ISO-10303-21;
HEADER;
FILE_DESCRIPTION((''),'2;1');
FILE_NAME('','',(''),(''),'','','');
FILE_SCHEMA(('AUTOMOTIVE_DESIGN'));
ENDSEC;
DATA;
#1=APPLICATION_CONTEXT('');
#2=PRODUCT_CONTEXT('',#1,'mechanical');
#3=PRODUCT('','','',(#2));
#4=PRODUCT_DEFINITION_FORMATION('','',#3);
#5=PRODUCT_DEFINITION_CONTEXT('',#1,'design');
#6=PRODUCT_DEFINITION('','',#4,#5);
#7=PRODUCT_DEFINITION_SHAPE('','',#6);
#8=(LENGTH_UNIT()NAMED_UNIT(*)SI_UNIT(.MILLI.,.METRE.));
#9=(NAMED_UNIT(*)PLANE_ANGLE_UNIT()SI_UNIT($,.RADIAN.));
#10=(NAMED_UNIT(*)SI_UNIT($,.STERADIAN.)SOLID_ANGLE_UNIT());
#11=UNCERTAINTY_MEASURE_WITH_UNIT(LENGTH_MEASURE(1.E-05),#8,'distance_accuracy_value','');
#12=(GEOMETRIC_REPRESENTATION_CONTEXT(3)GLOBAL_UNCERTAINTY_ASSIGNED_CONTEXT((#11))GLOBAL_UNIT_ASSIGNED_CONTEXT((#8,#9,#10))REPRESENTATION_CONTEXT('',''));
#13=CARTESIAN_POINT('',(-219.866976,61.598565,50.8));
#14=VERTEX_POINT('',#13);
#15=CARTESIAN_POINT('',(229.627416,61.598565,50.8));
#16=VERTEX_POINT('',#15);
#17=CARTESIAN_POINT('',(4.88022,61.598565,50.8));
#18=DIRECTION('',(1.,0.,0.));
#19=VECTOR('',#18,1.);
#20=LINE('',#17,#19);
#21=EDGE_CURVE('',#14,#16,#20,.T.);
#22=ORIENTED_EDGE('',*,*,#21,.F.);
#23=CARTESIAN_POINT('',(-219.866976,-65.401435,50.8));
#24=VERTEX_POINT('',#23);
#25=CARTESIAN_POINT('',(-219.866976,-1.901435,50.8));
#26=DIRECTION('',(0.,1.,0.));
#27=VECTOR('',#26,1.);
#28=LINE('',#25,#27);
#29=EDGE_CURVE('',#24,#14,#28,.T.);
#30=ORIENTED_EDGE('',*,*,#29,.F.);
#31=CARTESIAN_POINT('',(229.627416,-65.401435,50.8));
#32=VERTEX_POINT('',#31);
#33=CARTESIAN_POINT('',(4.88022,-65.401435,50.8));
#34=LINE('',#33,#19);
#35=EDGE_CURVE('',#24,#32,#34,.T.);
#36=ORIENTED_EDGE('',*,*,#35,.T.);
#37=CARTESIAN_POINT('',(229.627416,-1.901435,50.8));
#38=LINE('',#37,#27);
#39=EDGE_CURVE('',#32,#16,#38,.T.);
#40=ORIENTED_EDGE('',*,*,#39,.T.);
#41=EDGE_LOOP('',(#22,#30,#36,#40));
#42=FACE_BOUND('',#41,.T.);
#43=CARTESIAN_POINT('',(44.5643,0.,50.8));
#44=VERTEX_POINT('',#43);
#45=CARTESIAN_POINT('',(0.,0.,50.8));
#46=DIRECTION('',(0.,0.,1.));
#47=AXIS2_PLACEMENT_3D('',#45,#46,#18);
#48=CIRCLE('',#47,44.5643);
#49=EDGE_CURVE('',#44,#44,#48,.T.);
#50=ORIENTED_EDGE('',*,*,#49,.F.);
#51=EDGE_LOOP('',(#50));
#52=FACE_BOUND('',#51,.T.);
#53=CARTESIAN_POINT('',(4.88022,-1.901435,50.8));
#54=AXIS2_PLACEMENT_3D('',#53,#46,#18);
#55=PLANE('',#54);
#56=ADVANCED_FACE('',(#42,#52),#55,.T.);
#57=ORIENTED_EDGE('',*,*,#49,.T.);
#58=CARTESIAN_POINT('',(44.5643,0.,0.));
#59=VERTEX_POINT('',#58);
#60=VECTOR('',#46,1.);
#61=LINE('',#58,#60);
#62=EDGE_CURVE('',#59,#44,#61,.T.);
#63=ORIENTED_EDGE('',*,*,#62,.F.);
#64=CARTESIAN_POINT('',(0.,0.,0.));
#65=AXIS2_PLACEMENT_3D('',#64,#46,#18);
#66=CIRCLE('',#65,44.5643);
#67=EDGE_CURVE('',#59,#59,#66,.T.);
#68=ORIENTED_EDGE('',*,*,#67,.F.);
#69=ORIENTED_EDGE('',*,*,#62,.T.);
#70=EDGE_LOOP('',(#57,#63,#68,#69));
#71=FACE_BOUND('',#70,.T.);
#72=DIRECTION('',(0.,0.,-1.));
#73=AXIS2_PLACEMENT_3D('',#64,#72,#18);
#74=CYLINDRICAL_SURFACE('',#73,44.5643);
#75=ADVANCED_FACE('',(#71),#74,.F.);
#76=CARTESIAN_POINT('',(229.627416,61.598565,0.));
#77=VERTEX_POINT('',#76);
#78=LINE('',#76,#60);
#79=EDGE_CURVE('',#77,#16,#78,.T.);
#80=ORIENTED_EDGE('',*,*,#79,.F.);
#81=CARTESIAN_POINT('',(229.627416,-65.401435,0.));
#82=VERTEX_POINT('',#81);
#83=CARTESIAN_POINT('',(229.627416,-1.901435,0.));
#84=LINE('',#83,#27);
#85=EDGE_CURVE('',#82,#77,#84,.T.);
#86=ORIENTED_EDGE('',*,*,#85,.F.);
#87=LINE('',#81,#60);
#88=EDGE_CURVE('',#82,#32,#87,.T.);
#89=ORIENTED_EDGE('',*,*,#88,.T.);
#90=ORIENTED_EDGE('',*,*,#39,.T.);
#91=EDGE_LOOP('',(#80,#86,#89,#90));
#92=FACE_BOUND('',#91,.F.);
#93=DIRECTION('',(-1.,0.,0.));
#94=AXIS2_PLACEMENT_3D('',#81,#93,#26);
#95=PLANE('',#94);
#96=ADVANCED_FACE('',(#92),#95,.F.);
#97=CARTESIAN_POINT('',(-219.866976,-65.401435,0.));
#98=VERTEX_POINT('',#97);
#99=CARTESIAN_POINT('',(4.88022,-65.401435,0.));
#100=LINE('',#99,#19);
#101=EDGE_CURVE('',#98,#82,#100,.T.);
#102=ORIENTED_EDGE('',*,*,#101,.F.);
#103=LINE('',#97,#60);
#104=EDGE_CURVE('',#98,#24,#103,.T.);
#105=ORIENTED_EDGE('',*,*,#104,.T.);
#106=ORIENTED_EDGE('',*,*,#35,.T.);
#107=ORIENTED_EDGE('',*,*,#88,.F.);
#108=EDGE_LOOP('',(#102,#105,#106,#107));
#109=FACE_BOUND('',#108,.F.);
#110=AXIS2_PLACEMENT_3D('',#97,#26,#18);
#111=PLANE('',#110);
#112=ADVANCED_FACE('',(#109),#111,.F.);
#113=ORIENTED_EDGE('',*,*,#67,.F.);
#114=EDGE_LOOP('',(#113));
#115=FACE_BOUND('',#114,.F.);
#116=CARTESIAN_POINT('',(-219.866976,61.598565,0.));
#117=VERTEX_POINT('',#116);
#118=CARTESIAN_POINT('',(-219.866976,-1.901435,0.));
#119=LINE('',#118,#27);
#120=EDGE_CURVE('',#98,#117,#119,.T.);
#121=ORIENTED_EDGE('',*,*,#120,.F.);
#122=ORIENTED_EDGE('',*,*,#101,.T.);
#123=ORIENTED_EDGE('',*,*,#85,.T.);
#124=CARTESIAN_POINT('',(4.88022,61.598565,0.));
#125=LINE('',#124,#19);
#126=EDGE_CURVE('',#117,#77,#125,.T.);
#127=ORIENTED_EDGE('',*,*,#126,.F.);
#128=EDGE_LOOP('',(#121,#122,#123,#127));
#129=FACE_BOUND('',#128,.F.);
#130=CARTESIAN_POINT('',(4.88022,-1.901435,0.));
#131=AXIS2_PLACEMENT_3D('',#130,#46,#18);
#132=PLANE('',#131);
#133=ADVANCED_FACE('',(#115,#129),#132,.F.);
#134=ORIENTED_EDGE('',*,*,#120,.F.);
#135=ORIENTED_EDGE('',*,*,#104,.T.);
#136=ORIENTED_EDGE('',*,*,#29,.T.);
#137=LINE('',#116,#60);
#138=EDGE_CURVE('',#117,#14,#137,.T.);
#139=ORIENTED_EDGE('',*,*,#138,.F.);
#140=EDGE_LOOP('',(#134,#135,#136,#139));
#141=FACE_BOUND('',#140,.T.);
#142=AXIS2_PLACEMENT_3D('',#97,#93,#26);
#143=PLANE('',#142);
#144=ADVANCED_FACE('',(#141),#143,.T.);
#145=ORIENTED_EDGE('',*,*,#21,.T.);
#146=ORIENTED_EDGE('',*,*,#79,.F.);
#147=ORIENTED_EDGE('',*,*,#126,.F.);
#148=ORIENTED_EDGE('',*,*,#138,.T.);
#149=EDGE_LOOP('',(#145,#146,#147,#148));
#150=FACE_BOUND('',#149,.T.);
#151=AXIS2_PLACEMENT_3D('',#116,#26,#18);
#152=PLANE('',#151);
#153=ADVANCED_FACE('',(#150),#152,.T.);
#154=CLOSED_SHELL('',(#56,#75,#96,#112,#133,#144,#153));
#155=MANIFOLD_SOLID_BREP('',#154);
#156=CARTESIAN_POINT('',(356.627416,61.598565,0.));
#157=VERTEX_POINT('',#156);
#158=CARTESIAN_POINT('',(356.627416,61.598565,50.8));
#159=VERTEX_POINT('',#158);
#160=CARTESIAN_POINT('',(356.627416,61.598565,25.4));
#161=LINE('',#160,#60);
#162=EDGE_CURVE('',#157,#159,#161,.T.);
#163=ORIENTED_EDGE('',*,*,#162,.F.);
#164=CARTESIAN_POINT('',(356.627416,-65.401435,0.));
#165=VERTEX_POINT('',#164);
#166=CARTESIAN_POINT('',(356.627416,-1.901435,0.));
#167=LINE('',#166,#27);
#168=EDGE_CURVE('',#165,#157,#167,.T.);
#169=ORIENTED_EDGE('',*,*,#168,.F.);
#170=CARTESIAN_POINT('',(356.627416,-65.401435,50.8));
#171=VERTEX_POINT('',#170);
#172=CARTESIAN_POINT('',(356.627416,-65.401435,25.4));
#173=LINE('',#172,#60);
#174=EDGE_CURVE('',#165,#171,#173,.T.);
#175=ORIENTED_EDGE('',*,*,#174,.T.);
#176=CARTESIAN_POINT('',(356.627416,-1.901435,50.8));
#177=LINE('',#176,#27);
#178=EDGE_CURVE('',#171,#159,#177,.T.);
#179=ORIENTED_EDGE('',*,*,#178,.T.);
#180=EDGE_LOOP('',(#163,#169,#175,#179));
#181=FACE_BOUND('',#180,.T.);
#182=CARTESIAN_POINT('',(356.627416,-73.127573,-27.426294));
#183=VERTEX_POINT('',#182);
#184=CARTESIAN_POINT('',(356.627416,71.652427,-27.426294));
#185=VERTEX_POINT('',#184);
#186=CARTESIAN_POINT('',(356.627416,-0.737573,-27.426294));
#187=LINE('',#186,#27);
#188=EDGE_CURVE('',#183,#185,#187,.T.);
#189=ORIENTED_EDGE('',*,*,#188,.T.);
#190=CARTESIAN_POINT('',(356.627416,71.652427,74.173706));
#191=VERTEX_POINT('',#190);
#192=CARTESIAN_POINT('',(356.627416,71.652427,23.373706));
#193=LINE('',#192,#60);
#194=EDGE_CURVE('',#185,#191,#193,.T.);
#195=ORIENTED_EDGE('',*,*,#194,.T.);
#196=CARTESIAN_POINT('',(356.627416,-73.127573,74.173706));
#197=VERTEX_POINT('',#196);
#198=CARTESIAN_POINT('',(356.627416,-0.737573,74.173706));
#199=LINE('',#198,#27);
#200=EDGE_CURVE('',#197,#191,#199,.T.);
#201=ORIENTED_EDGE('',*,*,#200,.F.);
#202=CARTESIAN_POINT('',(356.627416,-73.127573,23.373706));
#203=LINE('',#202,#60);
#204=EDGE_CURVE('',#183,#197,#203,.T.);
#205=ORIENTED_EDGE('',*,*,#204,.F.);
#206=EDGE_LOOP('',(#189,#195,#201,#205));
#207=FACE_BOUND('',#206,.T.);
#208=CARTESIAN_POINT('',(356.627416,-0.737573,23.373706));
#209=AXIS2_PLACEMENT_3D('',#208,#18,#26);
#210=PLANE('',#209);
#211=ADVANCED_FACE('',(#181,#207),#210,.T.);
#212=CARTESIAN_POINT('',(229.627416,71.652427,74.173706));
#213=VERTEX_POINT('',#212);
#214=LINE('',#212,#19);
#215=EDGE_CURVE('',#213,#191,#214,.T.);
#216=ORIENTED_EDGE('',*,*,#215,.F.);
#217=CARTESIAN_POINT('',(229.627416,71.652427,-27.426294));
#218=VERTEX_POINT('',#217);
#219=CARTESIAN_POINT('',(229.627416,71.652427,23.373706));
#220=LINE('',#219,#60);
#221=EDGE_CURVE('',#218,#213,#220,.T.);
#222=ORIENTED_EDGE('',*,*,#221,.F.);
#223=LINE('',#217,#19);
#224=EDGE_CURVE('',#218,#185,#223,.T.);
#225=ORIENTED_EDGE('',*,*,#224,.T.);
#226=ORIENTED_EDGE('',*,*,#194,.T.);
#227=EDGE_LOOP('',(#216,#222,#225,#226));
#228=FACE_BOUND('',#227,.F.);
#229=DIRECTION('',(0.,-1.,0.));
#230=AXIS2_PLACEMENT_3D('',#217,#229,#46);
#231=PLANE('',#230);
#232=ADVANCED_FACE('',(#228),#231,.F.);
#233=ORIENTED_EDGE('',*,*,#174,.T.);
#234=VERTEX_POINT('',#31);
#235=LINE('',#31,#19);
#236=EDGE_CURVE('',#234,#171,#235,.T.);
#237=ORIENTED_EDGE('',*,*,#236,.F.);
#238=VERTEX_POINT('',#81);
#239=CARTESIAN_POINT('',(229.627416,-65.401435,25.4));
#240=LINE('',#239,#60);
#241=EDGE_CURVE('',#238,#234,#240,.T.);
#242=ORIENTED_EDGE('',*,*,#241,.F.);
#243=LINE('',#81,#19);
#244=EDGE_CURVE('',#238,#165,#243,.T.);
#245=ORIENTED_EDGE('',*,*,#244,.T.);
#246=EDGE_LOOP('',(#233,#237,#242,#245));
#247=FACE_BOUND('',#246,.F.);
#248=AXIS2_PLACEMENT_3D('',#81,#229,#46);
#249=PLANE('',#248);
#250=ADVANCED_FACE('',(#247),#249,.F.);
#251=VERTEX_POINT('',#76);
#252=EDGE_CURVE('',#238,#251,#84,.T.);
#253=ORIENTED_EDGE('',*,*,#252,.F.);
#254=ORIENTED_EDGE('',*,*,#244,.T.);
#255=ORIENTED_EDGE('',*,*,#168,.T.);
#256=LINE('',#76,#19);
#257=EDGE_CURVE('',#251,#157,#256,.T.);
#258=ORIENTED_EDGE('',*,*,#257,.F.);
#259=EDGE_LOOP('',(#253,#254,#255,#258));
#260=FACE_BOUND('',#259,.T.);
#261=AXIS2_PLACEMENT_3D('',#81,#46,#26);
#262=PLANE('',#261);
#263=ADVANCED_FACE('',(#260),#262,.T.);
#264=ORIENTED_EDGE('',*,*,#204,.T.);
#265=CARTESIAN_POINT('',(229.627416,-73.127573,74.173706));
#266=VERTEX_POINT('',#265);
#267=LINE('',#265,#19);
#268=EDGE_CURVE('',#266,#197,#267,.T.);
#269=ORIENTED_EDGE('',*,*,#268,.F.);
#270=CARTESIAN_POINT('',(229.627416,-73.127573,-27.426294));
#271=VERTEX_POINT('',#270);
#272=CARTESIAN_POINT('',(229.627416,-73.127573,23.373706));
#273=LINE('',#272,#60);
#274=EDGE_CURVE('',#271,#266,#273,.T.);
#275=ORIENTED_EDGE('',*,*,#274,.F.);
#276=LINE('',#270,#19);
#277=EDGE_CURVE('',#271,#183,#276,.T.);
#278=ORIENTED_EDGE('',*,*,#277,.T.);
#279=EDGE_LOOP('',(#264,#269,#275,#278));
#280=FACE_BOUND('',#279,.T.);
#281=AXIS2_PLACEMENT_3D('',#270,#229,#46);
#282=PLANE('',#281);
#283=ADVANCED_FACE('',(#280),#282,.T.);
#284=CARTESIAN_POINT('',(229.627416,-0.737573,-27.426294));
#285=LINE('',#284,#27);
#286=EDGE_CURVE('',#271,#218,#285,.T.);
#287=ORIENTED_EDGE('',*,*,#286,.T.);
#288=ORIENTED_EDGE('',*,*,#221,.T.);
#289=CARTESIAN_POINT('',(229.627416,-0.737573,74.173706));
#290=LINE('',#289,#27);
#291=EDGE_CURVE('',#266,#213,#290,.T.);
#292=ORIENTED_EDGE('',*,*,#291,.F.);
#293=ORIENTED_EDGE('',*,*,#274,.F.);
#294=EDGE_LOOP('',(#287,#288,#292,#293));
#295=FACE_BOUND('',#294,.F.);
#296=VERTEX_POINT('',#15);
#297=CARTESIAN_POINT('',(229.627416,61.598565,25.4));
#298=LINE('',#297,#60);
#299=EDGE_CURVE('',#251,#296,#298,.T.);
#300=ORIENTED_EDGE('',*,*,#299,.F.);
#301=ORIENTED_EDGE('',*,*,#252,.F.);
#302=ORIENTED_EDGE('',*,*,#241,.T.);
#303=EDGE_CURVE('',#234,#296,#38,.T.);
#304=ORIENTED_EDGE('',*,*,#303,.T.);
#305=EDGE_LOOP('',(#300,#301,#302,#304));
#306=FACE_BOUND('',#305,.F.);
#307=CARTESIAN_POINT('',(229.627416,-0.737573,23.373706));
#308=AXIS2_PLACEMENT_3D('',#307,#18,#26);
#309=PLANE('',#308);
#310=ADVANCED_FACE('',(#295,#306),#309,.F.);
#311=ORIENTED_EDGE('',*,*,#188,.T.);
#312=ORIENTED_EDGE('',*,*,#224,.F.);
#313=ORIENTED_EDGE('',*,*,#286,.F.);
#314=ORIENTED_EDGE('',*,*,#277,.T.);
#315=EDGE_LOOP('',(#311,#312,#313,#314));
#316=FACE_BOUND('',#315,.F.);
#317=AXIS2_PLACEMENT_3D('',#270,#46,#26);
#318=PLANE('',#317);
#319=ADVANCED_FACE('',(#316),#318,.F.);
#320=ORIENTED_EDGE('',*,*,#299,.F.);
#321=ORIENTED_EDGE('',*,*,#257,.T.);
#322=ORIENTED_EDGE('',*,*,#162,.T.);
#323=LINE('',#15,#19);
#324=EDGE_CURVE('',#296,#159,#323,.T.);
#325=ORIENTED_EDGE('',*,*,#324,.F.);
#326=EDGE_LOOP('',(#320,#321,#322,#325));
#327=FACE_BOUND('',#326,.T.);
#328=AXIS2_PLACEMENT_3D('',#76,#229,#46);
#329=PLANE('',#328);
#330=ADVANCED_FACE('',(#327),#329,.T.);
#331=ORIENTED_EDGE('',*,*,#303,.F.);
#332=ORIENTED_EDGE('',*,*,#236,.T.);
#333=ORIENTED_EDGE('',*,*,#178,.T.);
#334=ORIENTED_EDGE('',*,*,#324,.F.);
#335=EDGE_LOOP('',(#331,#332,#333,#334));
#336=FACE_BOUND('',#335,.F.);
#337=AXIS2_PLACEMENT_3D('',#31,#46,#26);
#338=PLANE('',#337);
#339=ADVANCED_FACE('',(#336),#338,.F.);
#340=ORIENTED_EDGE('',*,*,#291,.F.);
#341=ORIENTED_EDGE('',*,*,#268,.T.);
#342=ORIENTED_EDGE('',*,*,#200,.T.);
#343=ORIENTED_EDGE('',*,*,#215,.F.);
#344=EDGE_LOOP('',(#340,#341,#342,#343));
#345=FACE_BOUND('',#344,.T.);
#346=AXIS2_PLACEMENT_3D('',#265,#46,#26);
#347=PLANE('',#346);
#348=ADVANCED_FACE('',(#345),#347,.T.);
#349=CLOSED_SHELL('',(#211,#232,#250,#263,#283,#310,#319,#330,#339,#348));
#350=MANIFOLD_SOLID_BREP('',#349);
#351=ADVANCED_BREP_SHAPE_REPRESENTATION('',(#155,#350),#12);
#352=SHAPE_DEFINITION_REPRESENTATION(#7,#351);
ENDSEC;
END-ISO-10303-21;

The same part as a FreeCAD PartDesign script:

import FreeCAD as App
import Part
import Sketcher
Q = App.Units.Quantity

doc = App.newDocument("Part")
body = doc.addObject("PartDesign::Body", "Body")

# Sketch on XY plane
sketch1 = body.newObject("Sketcher::SketchObject", "Sketch")
sketch1.AttachmentSupport = (doc.getObject("XY_Plane"), [""])
sketch1.MapMode = "FlatFace"
sketch1.addGeometry([
    Part.LineSegment(App.Vector(-220, 62, 0), App.Vector(-220, -65, 0)),  # 0
    Part.LineSegment(App.Vector(-220, -65, 0), App.Vector(230, -65, 0)),  # 1
    Part.LineSegment(App.Vector(230, -65, 0), App.Vector(230, 62, 0)),  # 2
    Part.LineSegment(App.Vector(230, 62, 0), App.Vector(-220, 62, 0)),  # 3
    Part.Circle(App.Vector(0, 0, 0), App.Vector(0, 0, 1), 45),  # 4
], False)
sketch1.addConstraint([
    Sketcher.Constraint("Coincident", 0, 2, 1, 1),
    Sketcher.Constraint("Coincident", 1, 2, 2, 1),
    Sketcher.Constraint("Coincident", 2, 2, 3, 1),
    Sketcher.Constraint("Coincident", 3, 2, 0, 1),
    Sketcher.Constraint("Vertical", 0),
    Sketcher.Constraint("Horizontal", 1),
    Sketcher.Constraint("Vertical", 2),
    Sketcher.Constraint("Horizontal", 3),
    Sketcher.Constraint("Coincident", 4, 3, -1, 1),
    Sketcher.Constraint("DistanceY", 0, 2, 0, 1, Q("5 in")),
    Sketcher.Constraint("Diameter", 4, Q("3.509 in")),
    Sketcher.Constraint("DistanceX", 1, 1, 1, 2, Q("449.494392 mm")),
    Sketcher.Constraint("DistanceX", 0, 2, -1, 1, Q("219.866976 mm")),
    Sketcher.Constraint("DistanceY", 0, 2, -1, 1, Q("65.401435 mm")),
])
pad1 = body.newObject("PartDesign::Pad", "Pad")
pad1.Profile = sketch1
pad1.Length = Q("2 in")
body2 = doc.addObject("PartDesign::Body", "Body001")

# Sketch on YZ plane
sketch2 = body2.newObject("Sketcher::SketchObject", "Sketch001")
sketch2.AttachmentSupport = (doc.getObject("YZ_Plane001"), [""])
sketch2.MapMode = "FlatFace"
sketch2.AttachmentOffset = App.Placement(App.Vector(0, 0, 229.627416), App.Rotation())
sketch2.addGeometry([
    Part.LineSegment(App.Vector(-73, 74, 0), App.Vector(-73, -27, 0)),  # 0
    Part.LineSegment(App.Vector(-73, -27, 0), App.Vector(72, -27, 0)),  # 1
    Part.LineSegment(App.Vector(72, -27, 0), App.Vector(72, 74, 0)),  # 2
    Part.LineSegment(App.Vector(72, 74, 0), App.Vector(-73, 74, 0)),  # 3
    Part.LineSegment(App.Vector(62, 0, 0), App.Vector(-65, 0, 0)),  # 4
    Part.LineSegment(App.Vector(-65, 0, 0), App.Vector(-65, 51, 0)),  # 5
    Part.LineSegment(App.Vector(-65, 51, 0), App.Vector(62, 51, 0)),  # 6
    Part.LineSegment(App.Vector(62, 51, 0), App.Vector(62, 0, 0)),  # 7
], False)
sketch2.addConstraint([
    Sketcher.Constraint("Coincident", 0, 2, 1, 1),
    Sketcher.Constraint("Coincident", 1, 2, 2, 1),
    Sketcher.Constraint("Coincident", 2, 2, 3, 1),
    Sketcher.Constraint("Coincident", 3, 2, 0, 1),
    Sketcher.Constraint("Coincident", 4, 2, 5, 1),
    Sketcher.Constraint("Coincident", 5, 2, 6, 1),
    Sketcher.Constraint("Coincident", 6, 2, 7, 1),
    Sketcher.Constraint("Coincident", 7, 2, 4, 1),
    Sketcher.Constraint("Vertical", 0),
    Sketcher.Constraint("Horizontal", 1),
    Sketcher.Constraint("Vertical", 2),
    Sketcher.Constraint("Horizontal", 3),
    Sketcher.Constraint("Horizontal", 4),
    Sketcher.Constraint("Vertical", 5),
    Sketcher.Constraint("Horizontal", 6),
    Sketcher.Constraint("Vertical", 7),
    Sketcher.Constraint("PointOnObject", 4, 2, -1),
    Sketcher.Constraint("DistanceX", 4, 2, 4, 1, Q("5 in")),
    Sketcher.Constraint("DistanceY", 0, 2, 0, 1, Q("4 in")),
    Sketcher.Constraint("DistanceY", 5, 1, 5, 2, Q("2 in")),
    Sketcher.Constraint("DistanceX", 1, 1, 1, 2, Q("5.7 in")),
    Sketcher.Constraint("DistanceX", 3, 2, 6, 2, Q("134.726138 mm")),
    Sketcher.Constraint("DistanceX", 0, 2, -1, 1, Q("73.127573 mm")),
    Sketcher.Constraint("DistanceY", 0, 2, -1, 1, Q("27.426294 mm")),
])
pad2 = body2.newObject("PartDesign::Pad", "Pad001")
pad2.Profile = sketch2
pad2.Length = Q("5 in")

doc.recompute()
